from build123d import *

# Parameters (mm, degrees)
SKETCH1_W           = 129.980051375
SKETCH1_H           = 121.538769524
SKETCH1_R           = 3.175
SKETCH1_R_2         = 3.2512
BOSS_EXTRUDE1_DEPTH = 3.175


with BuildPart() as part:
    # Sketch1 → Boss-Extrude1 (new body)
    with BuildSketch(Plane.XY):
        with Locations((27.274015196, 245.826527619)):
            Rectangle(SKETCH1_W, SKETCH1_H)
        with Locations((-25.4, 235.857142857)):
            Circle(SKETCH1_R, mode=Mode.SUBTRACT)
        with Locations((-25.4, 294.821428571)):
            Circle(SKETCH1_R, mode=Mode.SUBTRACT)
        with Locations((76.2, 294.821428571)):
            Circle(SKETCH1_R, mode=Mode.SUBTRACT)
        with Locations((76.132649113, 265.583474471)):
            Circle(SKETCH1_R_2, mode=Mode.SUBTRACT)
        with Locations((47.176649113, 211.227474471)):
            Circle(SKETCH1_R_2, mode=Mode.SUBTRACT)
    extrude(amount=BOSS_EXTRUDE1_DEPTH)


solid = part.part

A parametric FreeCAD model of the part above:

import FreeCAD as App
import Part
import Sketcher
from FreeCAD import Vector
Q = App.Units.Quantity

doc = App.newDocument("Part")
params = doc.addObject("Spreadsheet::Sheet", "Params")
for row, (alias, value) in enumerate([
    ("sketch1_diameter", "0.25 in"),
    ("sketch1_diameter2", "0.256 in"),
    ("pad1_length", "0.125 in"),
], start=1):
    params.set(f"A{row}", alias)
    params.set(f"B{row}", "=" + value)
    params.setAlias(f"B{row}", alias)

body = doc.addObject("PartDesign::Body", "Body")

# Sketch on XY plane
sketch1 = body.newObject("Sketcher::SketchObject", "Sketch")
sketch1.AttachmentSupport = (doc.getObject("XY_Plane"), [""])
sketch1.MapMode = "FlatFace"
sketch1.addGeometry([
    Part.LineSegment(Vector(-37.7, 306.6, 0), Vector(-37.7, 185.1, 0)),  # 0
    Part.LineSegment(Vector(-37.7, 185.1, 0), Vector(92.3, 185.1, 0)),  # 1
    Part.LineSegment(Vector(92.3, 185.1, 0), Vector(92.3, 306.6, 0)),  # 2
    Part.LineSegment(Vector(92.3, 306.6, 0), Vector(-37.7, 306.6, 0)),  # 3
    Part.Circle(Vector(-25.4, 235.9, 0), Vector(0, 0, 1), 3.2),  # 4
    Part.Circle(Vector(47.2, 211.2, 0), Vector(0, 0, 1), 3.3),  # 5
    Part.Circle(Vector(-25.4, 294.8, 0), Vector(0, 0, 1), 3.2),  # 6
    Part.Circle(Vector(76.1, 265.6, 0), Vector(0, 0, 1), 3.3),  # 7
    Part.Circle(Vector(76.2, 294.8, 0), Vector(0, 0, 1), 3.2),  # 8
], False)
sketch1.addConstraint([
    Sketcher.Constraint("Coincident", 0, 2, 1, 1),
    Sketcher.Constraint("Coincident", 1, 2, 2, 1),
    Sketcher.Constraint("Coincident", 2, 2, 3, 1),
    Sketcher.Constraint("Coincident", 3, 2, 0, 1),
    Sketcher.Constraint("Vertical", 0),
    Sketcher.Constraint("Horizontal", 1),
    Sketcher.Constraint("Vertical", 2),
    Sketcher.Constraint("Horizontal", 3),
    Sketcher.Constraint("Equal", 4, 6),
    Sketcher.Constraint("Equal", 5, 7),
    Sketcher.Constraint("Equal", 6, 8),
    Sketcher.Constraint("Horizontal", 6, 3, 8, 3),
    Sketcher.Constraint("Vertical", 4, 3, 6, 3),
    Sketcher.Constraint("Diameter", 4, Q("0.25 in")),
    Sketcher.Constraint("Diameter", 5, Q("0.256 in")),
    Sketcher.Constraint("DistanceX", 4, 3, -1, 1, Q("1 in")),
    Sketcher.Constraint("DistanceX", -1, 1, 8, 3, Q("3 in")),
    Sketcher.Constraint("DistanceY", 0, 2, 4, 3, Q("2 in")),
    Sketcher.Constraint("DistanceX", 5, 3, 7, 3, Q("1.14 in")),
    Sketcher.Constraint("DistanceY", 5, 3, 7, 3, Q("2.14 in")),
    Sketcher.Constraint("DistanceX", 1, 1, 1, 2, 129.980051),
    Sketcher.Constraint("DistanceY", 0, 2, 0, 1, 121.53877),
    Sketcher.Constraint("DistanceX", -1, 1, 5, 3, 47.176649),
    Sketcher.Constraint("DistanceY", -1, 1, 6, 3, 294.821429),
    Sketcher.Constraint("DistanceX", 0, 2, -1, 1, 37.71601),
    Sketcher.Constraint("DistanceY", 5, 3, 4, 3, 24.629668),
    Sketcher.Constraint("DistanceY", -1, 1, 4, 3, 235.857143),
])
sketch1.setExpression("Constraints[13]", "Params.sketch1_diameter")
sketch1.setExpression("Constraints[14]", "Params.sketch1_diameter2")
pad1 = body.newObject("PartDesign::Pad", "Pad")
pad1.Profile = sketch1
pad1.setExpression("Length", "Params.pad1_length")

doc.recompute()
